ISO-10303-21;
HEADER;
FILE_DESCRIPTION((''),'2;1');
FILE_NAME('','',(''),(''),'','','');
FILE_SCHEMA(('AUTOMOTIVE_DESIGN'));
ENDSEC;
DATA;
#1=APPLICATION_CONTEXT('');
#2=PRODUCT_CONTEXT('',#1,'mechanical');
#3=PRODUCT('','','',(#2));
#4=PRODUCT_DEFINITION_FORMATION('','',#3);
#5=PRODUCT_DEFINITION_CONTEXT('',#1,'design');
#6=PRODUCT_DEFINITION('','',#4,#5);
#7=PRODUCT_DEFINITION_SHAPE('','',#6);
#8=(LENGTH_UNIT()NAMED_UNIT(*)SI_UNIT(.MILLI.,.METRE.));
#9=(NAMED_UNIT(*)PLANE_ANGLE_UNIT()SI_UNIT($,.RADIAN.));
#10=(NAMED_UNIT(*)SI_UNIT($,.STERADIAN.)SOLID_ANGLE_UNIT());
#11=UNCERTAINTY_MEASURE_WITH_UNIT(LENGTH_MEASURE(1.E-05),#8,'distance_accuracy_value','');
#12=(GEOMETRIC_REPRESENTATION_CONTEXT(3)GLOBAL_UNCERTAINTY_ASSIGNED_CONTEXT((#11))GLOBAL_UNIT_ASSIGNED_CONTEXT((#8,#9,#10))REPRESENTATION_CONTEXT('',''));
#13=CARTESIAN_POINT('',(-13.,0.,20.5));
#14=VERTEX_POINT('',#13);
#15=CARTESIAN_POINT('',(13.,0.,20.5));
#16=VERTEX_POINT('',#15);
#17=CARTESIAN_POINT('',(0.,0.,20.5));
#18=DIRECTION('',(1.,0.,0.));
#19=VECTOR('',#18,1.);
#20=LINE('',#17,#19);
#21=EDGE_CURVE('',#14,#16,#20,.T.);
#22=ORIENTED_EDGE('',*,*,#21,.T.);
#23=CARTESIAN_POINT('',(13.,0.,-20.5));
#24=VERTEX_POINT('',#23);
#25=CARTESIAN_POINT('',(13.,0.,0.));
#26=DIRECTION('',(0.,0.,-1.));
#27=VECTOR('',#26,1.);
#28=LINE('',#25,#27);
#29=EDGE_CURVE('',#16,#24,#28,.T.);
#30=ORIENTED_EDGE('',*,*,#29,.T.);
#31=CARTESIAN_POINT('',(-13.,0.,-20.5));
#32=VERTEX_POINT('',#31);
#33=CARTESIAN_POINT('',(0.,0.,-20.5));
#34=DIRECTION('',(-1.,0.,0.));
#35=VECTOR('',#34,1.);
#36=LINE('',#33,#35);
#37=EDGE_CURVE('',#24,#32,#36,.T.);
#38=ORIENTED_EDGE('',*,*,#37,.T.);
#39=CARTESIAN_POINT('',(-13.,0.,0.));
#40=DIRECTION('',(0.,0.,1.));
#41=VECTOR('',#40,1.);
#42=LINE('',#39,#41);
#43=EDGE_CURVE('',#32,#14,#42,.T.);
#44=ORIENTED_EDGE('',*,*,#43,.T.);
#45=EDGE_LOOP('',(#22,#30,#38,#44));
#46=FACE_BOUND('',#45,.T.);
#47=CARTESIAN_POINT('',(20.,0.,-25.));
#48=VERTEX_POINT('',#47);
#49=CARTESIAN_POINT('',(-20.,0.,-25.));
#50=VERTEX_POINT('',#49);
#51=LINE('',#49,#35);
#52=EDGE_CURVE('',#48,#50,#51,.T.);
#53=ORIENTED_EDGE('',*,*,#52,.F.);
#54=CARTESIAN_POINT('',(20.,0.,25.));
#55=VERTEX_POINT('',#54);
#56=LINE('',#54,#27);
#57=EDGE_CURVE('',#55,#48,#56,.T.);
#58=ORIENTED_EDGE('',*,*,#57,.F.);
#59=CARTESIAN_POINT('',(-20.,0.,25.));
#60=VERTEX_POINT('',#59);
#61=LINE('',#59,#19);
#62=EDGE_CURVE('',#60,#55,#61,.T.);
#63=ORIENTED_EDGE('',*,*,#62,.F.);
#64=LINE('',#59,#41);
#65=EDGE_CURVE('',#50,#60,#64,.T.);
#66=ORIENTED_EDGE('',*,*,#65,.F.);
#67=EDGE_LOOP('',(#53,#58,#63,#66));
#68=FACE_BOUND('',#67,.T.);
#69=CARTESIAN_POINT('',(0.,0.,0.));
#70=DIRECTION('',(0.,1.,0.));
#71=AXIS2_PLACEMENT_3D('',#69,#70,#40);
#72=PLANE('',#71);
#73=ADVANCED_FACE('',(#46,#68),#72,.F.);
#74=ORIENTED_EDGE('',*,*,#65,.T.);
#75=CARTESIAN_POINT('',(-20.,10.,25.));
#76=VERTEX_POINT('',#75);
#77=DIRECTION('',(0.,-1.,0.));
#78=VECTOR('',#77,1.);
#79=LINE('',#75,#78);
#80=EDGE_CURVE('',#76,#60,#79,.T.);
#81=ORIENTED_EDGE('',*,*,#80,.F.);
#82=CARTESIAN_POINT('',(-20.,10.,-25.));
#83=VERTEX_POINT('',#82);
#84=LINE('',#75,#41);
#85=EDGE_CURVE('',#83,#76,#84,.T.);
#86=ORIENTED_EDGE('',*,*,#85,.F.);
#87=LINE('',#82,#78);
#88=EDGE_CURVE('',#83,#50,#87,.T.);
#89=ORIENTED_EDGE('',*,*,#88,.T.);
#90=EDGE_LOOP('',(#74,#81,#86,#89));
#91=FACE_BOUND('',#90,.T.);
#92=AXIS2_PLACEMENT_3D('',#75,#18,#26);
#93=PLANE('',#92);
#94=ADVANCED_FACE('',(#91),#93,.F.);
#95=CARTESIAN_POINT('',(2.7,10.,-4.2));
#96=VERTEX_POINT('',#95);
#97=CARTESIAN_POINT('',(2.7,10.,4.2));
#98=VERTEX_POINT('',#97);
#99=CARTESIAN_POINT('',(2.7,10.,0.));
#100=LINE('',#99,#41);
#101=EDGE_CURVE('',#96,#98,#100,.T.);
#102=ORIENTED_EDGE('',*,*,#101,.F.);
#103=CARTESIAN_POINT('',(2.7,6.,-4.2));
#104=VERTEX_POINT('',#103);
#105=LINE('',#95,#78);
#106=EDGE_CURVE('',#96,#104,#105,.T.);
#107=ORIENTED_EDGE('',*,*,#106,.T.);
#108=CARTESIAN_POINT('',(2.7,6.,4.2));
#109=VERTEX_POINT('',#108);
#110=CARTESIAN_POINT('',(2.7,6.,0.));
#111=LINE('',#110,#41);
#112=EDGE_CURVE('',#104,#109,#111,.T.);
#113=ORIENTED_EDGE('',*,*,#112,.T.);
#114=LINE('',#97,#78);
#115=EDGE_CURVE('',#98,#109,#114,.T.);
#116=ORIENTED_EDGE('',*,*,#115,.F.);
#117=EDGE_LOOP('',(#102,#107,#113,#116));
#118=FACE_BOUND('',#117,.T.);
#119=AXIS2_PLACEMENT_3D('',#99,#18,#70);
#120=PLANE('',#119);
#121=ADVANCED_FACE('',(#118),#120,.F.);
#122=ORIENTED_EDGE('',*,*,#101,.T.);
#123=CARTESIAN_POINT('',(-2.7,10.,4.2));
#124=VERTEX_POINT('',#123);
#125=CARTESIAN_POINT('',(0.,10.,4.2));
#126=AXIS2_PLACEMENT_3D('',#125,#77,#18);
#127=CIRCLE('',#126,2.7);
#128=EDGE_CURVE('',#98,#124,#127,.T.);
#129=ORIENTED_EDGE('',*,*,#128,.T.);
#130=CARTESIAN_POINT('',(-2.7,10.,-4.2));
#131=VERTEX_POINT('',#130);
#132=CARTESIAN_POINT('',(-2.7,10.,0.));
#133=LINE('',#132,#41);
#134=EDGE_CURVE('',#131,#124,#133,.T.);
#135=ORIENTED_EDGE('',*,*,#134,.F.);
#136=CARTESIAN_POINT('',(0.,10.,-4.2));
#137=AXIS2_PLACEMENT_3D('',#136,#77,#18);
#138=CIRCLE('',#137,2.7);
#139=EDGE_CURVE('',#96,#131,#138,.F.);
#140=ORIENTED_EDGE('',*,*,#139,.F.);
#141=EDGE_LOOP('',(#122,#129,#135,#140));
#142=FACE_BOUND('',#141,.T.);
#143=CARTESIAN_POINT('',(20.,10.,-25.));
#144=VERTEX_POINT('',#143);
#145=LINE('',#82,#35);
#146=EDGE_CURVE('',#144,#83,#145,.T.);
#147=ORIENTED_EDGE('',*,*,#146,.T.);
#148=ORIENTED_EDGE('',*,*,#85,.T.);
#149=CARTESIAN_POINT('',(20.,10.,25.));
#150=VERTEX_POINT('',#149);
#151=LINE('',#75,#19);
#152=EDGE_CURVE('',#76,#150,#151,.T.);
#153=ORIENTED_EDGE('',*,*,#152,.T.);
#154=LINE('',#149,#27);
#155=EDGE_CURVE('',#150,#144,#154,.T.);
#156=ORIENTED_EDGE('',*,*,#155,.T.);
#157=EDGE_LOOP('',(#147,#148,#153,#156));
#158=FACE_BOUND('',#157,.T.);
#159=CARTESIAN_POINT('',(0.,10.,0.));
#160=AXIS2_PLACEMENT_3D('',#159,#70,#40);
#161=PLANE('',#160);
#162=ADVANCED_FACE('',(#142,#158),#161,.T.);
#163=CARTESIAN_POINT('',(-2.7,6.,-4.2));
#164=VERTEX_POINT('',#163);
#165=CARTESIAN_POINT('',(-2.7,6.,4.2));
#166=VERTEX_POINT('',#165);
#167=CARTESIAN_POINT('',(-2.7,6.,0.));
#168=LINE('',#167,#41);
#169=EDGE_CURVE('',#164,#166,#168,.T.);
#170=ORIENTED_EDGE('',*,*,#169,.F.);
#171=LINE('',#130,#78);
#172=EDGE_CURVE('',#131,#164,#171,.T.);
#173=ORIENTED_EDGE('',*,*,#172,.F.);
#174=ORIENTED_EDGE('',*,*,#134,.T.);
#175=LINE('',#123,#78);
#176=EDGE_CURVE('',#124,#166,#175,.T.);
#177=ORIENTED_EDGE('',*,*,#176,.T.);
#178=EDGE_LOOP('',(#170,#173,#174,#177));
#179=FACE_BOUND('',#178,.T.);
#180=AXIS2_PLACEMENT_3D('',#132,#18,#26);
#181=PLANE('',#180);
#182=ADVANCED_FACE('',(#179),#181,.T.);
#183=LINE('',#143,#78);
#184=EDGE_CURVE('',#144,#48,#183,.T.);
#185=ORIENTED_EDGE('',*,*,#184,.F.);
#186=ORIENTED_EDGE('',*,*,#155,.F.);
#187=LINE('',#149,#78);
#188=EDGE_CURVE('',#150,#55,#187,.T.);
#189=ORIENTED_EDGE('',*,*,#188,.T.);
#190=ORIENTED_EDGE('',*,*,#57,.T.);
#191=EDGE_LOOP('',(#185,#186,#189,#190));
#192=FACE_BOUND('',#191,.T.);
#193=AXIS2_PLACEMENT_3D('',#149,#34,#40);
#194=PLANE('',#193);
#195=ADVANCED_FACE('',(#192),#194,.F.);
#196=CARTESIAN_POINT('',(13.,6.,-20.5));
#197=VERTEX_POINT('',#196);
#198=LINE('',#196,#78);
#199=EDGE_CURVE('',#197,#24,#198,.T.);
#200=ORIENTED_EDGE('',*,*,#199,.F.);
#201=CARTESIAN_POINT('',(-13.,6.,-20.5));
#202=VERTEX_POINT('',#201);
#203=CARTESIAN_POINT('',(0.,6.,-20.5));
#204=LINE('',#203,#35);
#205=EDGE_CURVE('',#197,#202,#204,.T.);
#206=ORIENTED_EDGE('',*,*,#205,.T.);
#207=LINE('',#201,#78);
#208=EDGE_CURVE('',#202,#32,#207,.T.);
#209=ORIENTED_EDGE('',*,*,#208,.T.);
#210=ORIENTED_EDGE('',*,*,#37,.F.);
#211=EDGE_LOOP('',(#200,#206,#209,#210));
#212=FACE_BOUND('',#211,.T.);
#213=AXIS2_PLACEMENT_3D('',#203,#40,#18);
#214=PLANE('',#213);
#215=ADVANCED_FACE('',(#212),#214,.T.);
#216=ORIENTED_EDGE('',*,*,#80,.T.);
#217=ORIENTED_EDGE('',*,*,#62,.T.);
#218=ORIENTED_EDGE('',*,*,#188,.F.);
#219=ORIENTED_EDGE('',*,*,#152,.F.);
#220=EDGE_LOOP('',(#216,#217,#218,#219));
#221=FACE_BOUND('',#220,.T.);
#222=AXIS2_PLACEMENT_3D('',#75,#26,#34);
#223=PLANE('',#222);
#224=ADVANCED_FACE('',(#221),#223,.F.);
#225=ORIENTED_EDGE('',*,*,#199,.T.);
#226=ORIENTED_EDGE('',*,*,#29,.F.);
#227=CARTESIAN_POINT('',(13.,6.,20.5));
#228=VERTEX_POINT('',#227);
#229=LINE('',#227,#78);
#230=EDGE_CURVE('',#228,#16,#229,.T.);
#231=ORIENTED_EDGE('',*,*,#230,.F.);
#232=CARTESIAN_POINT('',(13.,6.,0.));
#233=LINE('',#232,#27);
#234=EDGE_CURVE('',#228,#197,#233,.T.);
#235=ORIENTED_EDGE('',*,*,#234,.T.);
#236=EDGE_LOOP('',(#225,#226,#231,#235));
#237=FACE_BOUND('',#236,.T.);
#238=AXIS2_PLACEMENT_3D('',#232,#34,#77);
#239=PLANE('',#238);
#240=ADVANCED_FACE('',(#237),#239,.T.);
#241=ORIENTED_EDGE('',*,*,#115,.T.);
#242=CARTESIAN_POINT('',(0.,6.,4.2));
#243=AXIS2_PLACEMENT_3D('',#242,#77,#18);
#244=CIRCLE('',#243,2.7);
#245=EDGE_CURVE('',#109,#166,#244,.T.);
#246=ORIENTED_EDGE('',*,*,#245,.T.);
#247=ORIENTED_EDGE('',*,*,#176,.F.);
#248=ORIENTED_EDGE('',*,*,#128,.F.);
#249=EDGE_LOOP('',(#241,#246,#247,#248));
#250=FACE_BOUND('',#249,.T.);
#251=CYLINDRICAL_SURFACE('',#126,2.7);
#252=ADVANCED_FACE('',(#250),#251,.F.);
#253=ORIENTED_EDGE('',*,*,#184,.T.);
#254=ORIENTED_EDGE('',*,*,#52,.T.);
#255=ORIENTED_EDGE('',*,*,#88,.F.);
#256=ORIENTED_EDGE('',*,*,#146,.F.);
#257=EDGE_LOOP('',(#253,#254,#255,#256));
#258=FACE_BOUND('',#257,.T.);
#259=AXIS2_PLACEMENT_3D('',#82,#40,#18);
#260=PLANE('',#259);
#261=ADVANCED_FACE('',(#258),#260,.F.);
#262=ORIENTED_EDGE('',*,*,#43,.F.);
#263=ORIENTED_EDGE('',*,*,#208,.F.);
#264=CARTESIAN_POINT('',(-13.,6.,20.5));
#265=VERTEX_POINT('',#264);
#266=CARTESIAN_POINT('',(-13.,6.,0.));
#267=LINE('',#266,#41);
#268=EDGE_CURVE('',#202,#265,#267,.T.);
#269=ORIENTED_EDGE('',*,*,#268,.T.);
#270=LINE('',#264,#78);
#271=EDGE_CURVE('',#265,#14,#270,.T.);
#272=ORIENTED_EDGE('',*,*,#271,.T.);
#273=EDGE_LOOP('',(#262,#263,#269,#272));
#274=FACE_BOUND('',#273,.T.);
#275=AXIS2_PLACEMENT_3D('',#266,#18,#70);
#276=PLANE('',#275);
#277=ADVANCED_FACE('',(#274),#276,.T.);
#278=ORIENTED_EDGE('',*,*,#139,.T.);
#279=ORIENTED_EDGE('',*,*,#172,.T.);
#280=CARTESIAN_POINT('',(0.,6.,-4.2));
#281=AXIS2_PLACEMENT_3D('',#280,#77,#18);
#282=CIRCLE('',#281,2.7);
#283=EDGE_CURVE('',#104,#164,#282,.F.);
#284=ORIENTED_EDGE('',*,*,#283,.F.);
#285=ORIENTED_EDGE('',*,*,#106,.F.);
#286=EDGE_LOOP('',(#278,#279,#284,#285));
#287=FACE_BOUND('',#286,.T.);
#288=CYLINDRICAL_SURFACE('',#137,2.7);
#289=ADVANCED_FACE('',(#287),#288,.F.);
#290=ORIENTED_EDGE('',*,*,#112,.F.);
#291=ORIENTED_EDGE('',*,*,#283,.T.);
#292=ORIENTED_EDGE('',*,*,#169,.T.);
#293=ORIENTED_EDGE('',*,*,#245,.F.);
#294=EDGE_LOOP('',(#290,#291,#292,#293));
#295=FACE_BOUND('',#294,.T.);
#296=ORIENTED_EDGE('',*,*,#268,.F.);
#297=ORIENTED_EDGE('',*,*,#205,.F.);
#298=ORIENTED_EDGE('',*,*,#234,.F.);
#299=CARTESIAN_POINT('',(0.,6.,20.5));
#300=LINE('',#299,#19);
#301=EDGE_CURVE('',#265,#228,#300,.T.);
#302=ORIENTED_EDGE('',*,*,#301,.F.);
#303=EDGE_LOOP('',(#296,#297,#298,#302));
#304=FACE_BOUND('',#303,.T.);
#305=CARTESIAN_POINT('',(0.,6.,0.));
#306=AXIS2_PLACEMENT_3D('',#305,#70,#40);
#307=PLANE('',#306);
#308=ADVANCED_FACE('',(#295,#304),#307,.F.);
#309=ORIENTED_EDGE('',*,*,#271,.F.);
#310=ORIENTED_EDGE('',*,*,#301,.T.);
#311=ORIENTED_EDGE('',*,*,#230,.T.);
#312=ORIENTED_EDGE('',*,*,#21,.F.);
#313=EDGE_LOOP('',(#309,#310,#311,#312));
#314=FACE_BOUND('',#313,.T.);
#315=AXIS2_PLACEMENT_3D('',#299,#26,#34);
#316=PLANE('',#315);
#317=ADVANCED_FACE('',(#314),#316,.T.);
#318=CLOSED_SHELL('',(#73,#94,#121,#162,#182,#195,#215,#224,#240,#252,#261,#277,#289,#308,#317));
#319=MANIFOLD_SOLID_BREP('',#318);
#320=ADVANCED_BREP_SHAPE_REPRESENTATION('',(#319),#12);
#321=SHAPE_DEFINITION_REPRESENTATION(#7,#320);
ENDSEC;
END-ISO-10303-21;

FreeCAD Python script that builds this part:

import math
import FreeCAD as App
import Part
import Sketcher

V = App.Vector
Q = App.Units.Quantity

doc = App.newDocument("Part")
body = doc.addObject("PartDesign::Body", "Body")

sketch1 = body.newObject("Sketcher::SketchObject", "Sketch")
sketch1.AttachmentSupport = (doc.getObject("XZ_Plane"), [""])
sketch1.MapMode = "FlatFace"
sketch1.addGeometry([
    Part.LineSegment(V(-20, 25, 0), V(20, 25, 0)),
    Part.LineSegment(V(20, 25, 0), V(20, -25, 0)),
    Part.LineSegment(V(20, -25, 0), V(-20, -25, 0)),
    Part.LineSegment(V(-20, -25, 0), V(-20, 25, 0)),
], False)
sketch1.addConstraint([
    Sketcher.Constraint("Coincident", 0, 2, 1, 1),
    Sketcher.Constraint("Coincident", 1, 2, 2, 1),
    Sketcher.Constraint("Coincident", 2, 2, 3, 1),
    Sketcher.Constraint("Coincident", 3, 2, 0, 1),
    Sketcher.Constraint("Horizontal", 0),
    Sketcher.Constraint("Vertical", 1),
    Sketcher.Constraint("Horizontal", 2),
    Sketcher.Constraint("Vertical", 3),
    Sketcher.Constraint("Symmetric", 0, 2, 2, 2, -1, 1),
    Sketcher.Constraint("DistanceX", 0, 1, 0, 2, Q("40 mm")),
    Sketcher.Constraint("DistanceY", 1, 2, 1, 1, Q("50 mm")),
])
pad1 = body.newObject("PartDesign::Pad", "Pad")
pad1.Profile = sketch1
pad1.Length = 10
pad1.Reversed = True

sketch2 = body.newObject("Sketcher::SketchObject", "Sketch001")
sketch2.AttachmentSupport = (doc.getObject("XZ_Plane"), [""])
sketch2.MapMode = "FlatFace"
sketch2.addGeometry([
    Part.LineSegment(V(-13, 20, 0), V(13, 20, 0)),
    Part.LineSegment(V(13, 20, 0), V(13, -20, 0)),
    Part.LineSegment(V(13, -20, 0), V(-13, -20, 0)),
    Part.LineSegment(V(-13, -20, 0), V(-13, 20, 0)),
], False)
sketch2.addConstraint([
    Sketcher.Constraint("Coincident", 0, 2, 1, 1),
    Sketcher.Constraint("Coincident", 1, 2, 2, 1),
    Sketcher.Constraint("Coincident", 2, 2, 3, 1),
    Sketcher.Constraint("Coincident", 3, 2, 0, 1),
    Sketcher.Constraint("Horizontal", 0),
    Sketcher.Constraint("Vertical", 1),
    Sketcher.Constraint("Horizontal", 2),
    Sketcher.Constraint("Vertical", 3),
    Sketcher.Constraint("Symmetric", 0, 2, 2, 2, -1, 1),
    Sketcher.Constraint("DistanceX", 0, 1, 0, 2, Q("26 mm")),
    Sketcher.Constraint("DistanceY", 1, 2, 1, 1, Q("41 mm")),
])
pocket1 = body.newObject("PartDesign::Pocket", "Pocket")
pocket1.Profile = sketch2
pocket1.Length = 6

sketch3 = body.newObject("Sketcher::SketchObject", "Sketch002")
sketch3.AttachmentSupport = (doc.getObject("XZ_Plane"), [""])
sketch3.MapMode = "FlatFace"
sketch3.AttachmentOffset = App.Placement(V(0, 0, -6), App.Rotation())
sketch3.addGeometry([
    Part.LineSegment(V(2.7, -4.2, 0), V(2.7, 4.2, 0)),
    Part.ArcOfCircle(Part.Circle(V(0, 4.2, 0), V(0, 0, 1), 2.7), math.radians(0), math.radians(90)),
    Part.ArcOfCircle(Part.Circle(V(0, 4.2, 0), V(0, 0, 1), 2.7), math.radians(90), math.radians(180)),
    Part.LineSegment(V(-2.7, 4.2, 0), V(-2.7, -4.2, 0)),
    Part.ArcOfCircle(Part.Circle(V(0, -4.2, 0), V(0, 0, 1), 2.7), math.radians(180), math.radians(360)),
], False)
sketch3.addConstraint([
    Sketcher.Constraint("Tangent", 0, 2, 1, 1),
    Sketcher.Constraint("Tangent", 1, 2, 2, 1),
    Sketcher.Constraint("Tangent", 2, 2, 3, 1),
    Sketcher.Constraint("Tangent", 3, 2, 4, 1),
    Sketcher.Constraint("Tangent", 4, 2, 0, 1),
    Sketcher.Constraint("Vertical", 0),
    Sketcher.Constraint("Vertical", 3),
    Sketcher.Constraint("Equal", 1, 2),
    Sketcher.Constraint("Symmetric", 1, 3, 4, 3, -1, 1),
    Sketcher.Constraint("PointOnObject", 1, 2, -2),
    Sketcher.Constraint("Radius", 1, Q("2.7 mm")),
    Sketcher.Constraint("DistanceY", 0, 1, 0, 2, Q("8.4 mm")),
])
pocket2 = body.newObject("PartDesign::Pocket", "Pocket001")
pocket2.Profile = sketch3
pocket2.Type = "ThroughAll"

doc.recompute()
